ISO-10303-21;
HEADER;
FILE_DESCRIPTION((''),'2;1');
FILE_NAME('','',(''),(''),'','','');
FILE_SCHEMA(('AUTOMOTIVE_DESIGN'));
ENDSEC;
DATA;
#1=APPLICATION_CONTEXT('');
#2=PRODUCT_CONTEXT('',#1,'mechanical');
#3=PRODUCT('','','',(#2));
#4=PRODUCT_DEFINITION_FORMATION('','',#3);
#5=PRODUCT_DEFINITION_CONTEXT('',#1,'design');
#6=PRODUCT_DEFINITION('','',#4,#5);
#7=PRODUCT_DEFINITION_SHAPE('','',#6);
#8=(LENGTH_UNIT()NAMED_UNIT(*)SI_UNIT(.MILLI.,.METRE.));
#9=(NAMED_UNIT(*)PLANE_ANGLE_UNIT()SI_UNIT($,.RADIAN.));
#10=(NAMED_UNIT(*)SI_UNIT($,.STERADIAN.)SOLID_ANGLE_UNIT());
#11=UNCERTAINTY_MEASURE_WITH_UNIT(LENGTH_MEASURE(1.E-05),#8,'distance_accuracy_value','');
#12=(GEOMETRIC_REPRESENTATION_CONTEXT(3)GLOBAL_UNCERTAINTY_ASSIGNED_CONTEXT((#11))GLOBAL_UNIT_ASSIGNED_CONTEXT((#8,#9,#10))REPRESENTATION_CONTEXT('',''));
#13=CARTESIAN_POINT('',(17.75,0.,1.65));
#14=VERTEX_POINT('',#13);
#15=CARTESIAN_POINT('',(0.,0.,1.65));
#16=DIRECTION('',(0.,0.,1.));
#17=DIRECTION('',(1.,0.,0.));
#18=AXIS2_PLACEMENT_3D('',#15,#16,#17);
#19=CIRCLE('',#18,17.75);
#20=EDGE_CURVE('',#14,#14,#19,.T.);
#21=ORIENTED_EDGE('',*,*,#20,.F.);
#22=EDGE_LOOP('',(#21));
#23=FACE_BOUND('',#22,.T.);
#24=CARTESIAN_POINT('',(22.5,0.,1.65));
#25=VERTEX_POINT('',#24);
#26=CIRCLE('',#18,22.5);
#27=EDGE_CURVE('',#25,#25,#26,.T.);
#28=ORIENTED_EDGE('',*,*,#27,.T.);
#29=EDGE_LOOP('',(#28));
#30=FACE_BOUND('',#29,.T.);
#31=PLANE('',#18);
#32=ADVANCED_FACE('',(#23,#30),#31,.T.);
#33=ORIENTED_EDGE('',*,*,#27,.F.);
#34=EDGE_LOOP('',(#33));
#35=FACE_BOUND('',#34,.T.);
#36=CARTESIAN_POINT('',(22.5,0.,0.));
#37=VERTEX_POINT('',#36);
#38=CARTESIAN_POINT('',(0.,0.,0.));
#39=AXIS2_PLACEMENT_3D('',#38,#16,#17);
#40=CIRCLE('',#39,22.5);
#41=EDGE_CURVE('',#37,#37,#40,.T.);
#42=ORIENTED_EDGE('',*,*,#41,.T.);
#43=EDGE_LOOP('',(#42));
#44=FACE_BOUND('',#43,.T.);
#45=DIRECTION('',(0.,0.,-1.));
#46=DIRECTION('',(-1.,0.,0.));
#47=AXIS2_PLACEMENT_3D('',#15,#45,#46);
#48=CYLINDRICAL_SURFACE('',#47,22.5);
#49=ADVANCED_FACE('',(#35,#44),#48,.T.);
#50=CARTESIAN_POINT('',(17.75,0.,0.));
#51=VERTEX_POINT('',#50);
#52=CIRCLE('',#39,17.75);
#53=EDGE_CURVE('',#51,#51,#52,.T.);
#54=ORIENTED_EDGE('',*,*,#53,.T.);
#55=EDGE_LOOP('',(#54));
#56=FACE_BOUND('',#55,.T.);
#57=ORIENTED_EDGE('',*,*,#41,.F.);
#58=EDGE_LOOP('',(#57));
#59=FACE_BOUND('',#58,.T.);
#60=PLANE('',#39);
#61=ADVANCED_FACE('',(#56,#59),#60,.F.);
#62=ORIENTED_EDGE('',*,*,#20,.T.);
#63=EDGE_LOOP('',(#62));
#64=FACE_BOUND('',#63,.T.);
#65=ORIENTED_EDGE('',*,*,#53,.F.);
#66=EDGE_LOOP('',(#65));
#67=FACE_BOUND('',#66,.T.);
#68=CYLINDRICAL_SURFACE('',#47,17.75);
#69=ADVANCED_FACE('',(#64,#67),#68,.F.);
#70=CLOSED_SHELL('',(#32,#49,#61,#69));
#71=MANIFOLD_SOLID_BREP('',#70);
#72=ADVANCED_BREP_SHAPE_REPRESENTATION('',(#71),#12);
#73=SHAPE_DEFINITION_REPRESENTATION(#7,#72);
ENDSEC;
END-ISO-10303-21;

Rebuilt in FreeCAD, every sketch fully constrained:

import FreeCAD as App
import Part
import Sketcher

doc = App.newDocument("Part")
params = doc.addObject("Spreadsheet::Sheet", "Params")
for row, (alias, value) in enumerate([
    ("sketch1_diameter", "45 mm"),
    ("sketch1_diameter2", "35.5 mm"),
    ("pad1_length", "1.65 mm"),
], start=1):
    params.set(f"A{row}", alias)
    params.set(f"B{row}", "=" + value)
    params.setAlias(f"B{row}", alias)

body = doc.addObject("PartDesign::Body", "Body")

sketch1 = body.newObject("Sketcher::SketchObject", "Sketch")
sketch1.AttachmentSupport = (doc.getObject("XY_Plane"), [""])
sketch1.MapMode = "FlatFace"
sketch1.addGeometry(Part.Circle(App.Vector(0, 0, 0), App.Vector(0, 0, 1), 22.5), False)
sketch1.addGeometry(Part.Circle(App.Vector(0, 0, 0), App.Vector(0, 0, 1), 17.75), False)
sketch1.addConstraint(Sketcher.Constraint("Coincident", 0, 3, -1, 1))
sketch1.addConstraint(Sketcher.Constraint("Coincident", 1, 3, -1, 1))
sketch1.addConstraint(Sketcher.Constraint("Diameter", 0, 45.0))
sketch1.addConstraint(Sketcher.Constraint("Diameter", 1, 35.5))
sketch1.setExpression("Constraints[2]", "Params.sketch1_diameter")
sketch1.setExpression("Constraints[3]", "Params.sketch1_diameter2")
pad1 = body.newObject("PartDesign::Pad", "Pad")
pad1.Profile = sketch1
pad1.setExpression("Length", "Params.pad1_length")

doc.recompute()
